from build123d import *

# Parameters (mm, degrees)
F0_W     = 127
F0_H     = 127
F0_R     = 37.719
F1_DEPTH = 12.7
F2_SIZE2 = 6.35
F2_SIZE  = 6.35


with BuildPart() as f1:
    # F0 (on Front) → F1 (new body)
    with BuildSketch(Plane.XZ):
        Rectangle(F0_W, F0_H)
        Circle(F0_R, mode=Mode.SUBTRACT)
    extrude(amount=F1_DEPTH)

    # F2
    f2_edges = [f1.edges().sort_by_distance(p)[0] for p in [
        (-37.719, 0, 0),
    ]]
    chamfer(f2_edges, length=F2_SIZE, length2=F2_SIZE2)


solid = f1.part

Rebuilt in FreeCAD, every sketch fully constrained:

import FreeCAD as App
import Part
import Sketcher

V = App.Vector
Q = App.Units.Quantity


def edges_at(feature, points):
    """Names of the edges that pass closest to the given points."""
    edges = feature.Shape.Edges
    near = lambda p: min(range(len(edges)), key=lambda i: edges[i].distToShape(Part.Vertex(*p))[0])
    return sorted({f"Edge{near(p) + 1}" for p in points})

doc = App.newDocument("Part")
body = doc.addObject("PartDesign::Body", "Body")

sketch1 = body.newObject("Sketcher::SketchObject", "Sketch")
sketch1.AttachmentSupport = (doc.getObject("XZ_Plane"), [""])
sketch1.MapMode = "FlatFace"
sketch1.addGeometry(Part.LineSegment(V(-63.5, 63.5, 0), V(-63.5, -63.5, 0)), False)
sketch1.addGeometry(Part.LineSegment(V(-63.5, -63.5, 0), V(63.5, -63.5, 0)), False)
sketch1.addGeometry(Part.LineSegment(V(63.5, -63.5, 0), V(63.5, 63.5, 0)), False)
sketch1.addGeometry(Part.LineSegment(V(63.5, 63.5, 0), V(-63.5, 63.5, 0)), False)
sketch1.addGeometry(Part.Circle(V(0, 0, 0), V(0, 0, 1), 37.719), False)
sketch1.addConstraint(Sketcher.Constraint("Coincident", 0, 2, 1, 1))
sketch1.addConstraint(Sketcher.Constraint("Coincident", 1, 2, 2, 1))
sketch1.addConstraint(Sketcher.Constraint("Coincident", 2, 2, 3, 1))
sketch1.addConstraint(Sketcher.Constraint("Coincident", 3, 2, 0, 1))
sketch1.addConstraint(Sketcher.Constraint("Vertical", 0))
sketch1.addConstraint(Sketcher.Constraint("Horizontal", 1))
sketch1.addConstraint(Sketcher.Constraint("Vertical", 2))
sketch1.addConstraint(Sketcher.Constraint("Horizontal", 3))
sketch1.addConstraint(Sketcher.Constraint("Coincident", 4, 3, -1, 1))
sketch1.addConstraint(Sketcher.Constraint("Symmetric", 0, 2, 2, 2, -1, 1))
sketch1.addConstraint(Sketcher.Constraint("Equal", 3, 0))
sketch1.addConstraint(Sketcher.Constraint("Diameter", 4, Q("2.97 in")))
sketch1.addConstraint(Sketcher.Constraint("DistanceX", 1, 1, 1, 2, Q("5 in")))
pad1 = body.newObject("PartDesign::Pad", "Pad")
pad1.Profile = sketch1
pad1.Length = Q("0.5 in")
doc.recompute()

chamfer = body.newObject("PartDesign::Chamfer", "Chamfer")
chamfer.Base = (pad1, edges_at(pad1, [(-37.719, 0, 0)]))
chamfer.ChamferType = "Two distances"
chamfer.Size = Q("0.25 in")
chamfer.Size2 = Q("0.25 in")

doc.recompute()
